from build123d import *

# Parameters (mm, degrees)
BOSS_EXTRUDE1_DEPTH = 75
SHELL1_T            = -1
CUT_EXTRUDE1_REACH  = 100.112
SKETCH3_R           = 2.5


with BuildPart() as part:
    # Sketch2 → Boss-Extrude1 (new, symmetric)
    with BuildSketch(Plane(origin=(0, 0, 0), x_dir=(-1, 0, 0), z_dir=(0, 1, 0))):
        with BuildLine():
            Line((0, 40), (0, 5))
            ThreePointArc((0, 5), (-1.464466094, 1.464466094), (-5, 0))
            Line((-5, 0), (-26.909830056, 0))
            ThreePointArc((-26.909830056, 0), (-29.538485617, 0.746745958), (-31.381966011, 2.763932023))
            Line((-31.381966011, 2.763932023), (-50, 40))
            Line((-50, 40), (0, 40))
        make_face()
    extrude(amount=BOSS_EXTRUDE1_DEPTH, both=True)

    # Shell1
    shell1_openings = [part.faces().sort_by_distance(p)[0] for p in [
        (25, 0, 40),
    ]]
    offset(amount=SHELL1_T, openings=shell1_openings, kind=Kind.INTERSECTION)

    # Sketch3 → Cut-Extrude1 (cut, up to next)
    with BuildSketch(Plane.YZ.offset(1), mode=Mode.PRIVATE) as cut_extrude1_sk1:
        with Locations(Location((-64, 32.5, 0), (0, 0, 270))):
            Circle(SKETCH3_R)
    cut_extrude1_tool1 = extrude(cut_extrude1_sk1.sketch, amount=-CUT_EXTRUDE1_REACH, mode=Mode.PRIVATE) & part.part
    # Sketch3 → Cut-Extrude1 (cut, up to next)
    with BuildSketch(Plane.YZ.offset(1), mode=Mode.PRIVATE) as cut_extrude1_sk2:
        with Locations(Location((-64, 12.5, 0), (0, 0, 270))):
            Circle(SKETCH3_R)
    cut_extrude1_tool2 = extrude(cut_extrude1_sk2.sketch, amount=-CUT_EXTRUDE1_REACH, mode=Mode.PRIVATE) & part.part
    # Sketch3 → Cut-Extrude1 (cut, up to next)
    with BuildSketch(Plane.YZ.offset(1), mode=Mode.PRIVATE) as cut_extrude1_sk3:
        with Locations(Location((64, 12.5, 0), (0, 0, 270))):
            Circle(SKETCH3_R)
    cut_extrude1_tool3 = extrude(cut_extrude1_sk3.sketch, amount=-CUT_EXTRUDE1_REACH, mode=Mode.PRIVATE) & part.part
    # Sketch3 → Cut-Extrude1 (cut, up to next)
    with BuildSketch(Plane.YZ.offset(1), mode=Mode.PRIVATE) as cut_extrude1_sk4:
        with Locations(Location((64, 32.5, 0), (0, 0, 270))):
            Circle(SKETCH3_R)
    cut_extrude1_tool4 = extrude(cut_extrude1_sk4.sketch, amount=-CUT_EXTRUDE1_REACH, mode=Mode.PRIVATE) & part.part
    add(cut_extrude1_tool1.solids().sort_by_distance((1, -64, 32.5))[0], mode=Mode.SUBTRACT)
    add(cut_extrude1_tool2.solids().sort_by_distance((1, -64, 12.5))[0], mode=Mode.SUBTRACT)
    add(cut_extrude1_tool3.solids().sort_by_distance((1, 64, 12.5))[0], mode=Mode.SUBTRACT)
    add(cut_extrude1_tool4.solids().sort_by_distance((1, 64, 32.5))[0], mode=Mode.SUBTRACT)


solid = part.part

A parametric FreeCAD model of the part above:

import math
import FreeCAD as App
import Part
import Sketcher
from FreeCAD import Vector
Q = App.Units.Quantity


def faces_at(feature, points):
    """Names of the faces that lie closest to the given points."""
    faces = feature.Shape.Faces
    near = lambda p: min(range(len(faces)), key=lambda i: faces[i].distToShape(Part.Vertex(*p))[0])
    return sorted({f"Face{near(p) + 1}" for p in points})

doc = App.newDocument("Part")
params = doc.addObject("Spreadsheet::Sheet", "Params")
for row, (alias, value) in enumerate([
    ("sketch1_radius", "5 mm"),
    ("sketch1_width", "50 mm"),
    ("sketch1_height", "35 mm"),
    ("pad1_length", "150 mm"),
    ("thickness_wall", "1 mm"),
    ("sketch2_diameter", "5 mm"),
    ("sketch3_diameter", "5 mm"),
    ("sketch4_diameter", "5 mm"),
    ("sketch5_diameter", "5 mm"),
], start=1):
    params.set(f"A{row}", alias)
    params.set(f"B{row}", "=" + value)
    params.setAlias(f"B{row}", alias)

body = doc.addObject("PartDesign::Body", "Body")

sketch1 = doc.addObject("Sketcher::SketchObject", "Sketch")
body.addObject(sketch1)
sketch1.AttachmentSupport = (doc.XZ_Plane, [""])
sketch1.MapMode = "FlatFace"
sketch1.addGeometry(Part.LineSegment(Vector(0, 5, 0), Vector(0, 40, 0)), False)
sketch1.addGeometry(Part.LineSegment(Vector(0, 40, 0), Vector(50, 40, 0)), False)
sketch1.addGeometry(Part.LineSegment(Vector(50, 40, 0), Vector(31.381966, 2.763932, 0)), False)
sketch1.addGeometry(Part.ArcOfCircle(Part.Circle(Vector(26.90983, 5, 0), Vector(0, 0, 1), 5), math.radians(-90), math.radians(-26.565051)), False)
sketch1.addGeometry(Part.LineSegment(Vector(26.90983, 0, 0), Vector(5, 0, 0)), False)
sketch1.addGeometry(Part.ArcOfCircle(Part.Circle(Vector(5, 5, 0), Vector(0, 0, 1), 5), math.radians(180), math.radians(270)), False)
sketch1.addConstraint(Sketcher.Constraint("Coincident", 0, 2, 1, 1))
sketch1.addConstraint(Sketcher.Constraint("Coincident", 1, 2, 2, 1))
sketch1.addConstraint(Sketcher.Constraint("Tangent", 2, 2, 3, 2))
sketch1.addConstraint(Sketcher.Constraint("Tangent", 3, 1, 4, 1))
sketch1.addConstraint(Sketcher.Constraint("Tangent", 4, 2, 5, 2))
sketch1.addConstraint(Sketcher.Constraint("Tangent", 5, 1, 0, 1))
sketch1.addConstraint(Sketcher.Constraint("Vertical", 0))
sketch1.addConstraint(Sketcher.Constraint("Horizontal", 1))
sketch1.addConstraint(Sketcher.Constraint("Horizontal", 4))
sketch1.addConstraint(Sketcher.Constraint("Equal", 3, 5))
sketch1.addConstraint(Sketcher.Constraint("PointOnObject", 0, 2, -2))
sketch1.addConstraint(Sketcher.Constraint("PointOnObject", 3, 1, -1))
sketch1.addConstraint(Sketcher.Constraint("Radius", 3, Q("5 mm")))
sketch1.addConstraint(Sketcher.Constraint("DistanceX", 1, 1, 1, 2, Q("50 mm")))
sketch1.addConstraint(Sketcher.Constraint("DistanceY", 0, 1, 0, 2, Q("35 mm")))
sketch1.addConstraint(Sketcher.Constraint("DistanceX", 4, 2, 4, 1, Q("21.90983 mm")))
sketch1.setExpression("Constraints[12]", "Params.sketch1_radius")
sketch1.setExpression("Constraints[13]", "Params.sketch1_width")
sketch1.setExpression("Constraints[14]", "Params.sketch1_height")
pad1 = doc.addObject("PartDesign::Pad", "Pad")
body.addObject(pad1)
pad1.Profile = sketch1
pad1.setExpression("Length", "Params.pad1_length")
pad1.Midplane = True
doc.recompute()

thickness = doc.addObject("PartDesign::Thickness", "Thickness")
body.addObject(thickness)
thickness.Base = (pad1, faces_at(pad1, [(25, 0, 40)]))
thickness.setExpression("Value", "Params.thickness_wall")
thickness.Reversed = True
thickness.Join = "Intersection"

sketch2 = doc.addObject("Sketcher::SketchObject", "Sketch001")
body.addObject(sketch2)
sketch2.AttachmentSupport = (doc.YZ_Plane, [""])
sketch2.MapMode = "FlatFace"
sketch2.AttachmentOffset = App.Placement(Vector(0, 0, 1), App.Rotation())
sketch2.addGeometry(Part.Circle(Vector(-64, 32.5, 0), Vector(0, 0, 1), 2.5), False)
sketch2.addConstraint(Sketcher.Constraint("Diameter", 0, Q("5 mm")))
sketch2.addConstraint(Sketcher.Constraint("DistanceX", 0, 3, -1, 1, Q("64 mm")))
sketch2.addConstraint(Sketcher.Constraint("DistanceY", -1, 1, 0, 3, Q("32.5 mm")))
sketch2.setExpression("Constraints[0]", "Params.sketch2_diameter")
pocket1 = doc.addObject("PartDesign::Pocket", "Pocket")
body.addObject(pocket1)
pocket1.Profile = sketch2
pocket1.Type = "UpToFirst"

sketch3 = doc.addObject("Sketcher::SketchObject", "Sketch002")
body.addObject(sketch3)
sketch3.AttachmentSupport = (doc.YZ_Plane, [""])
sketch3.MapMode = "FlatFace"
sketch3.AttachmentOffset = App.Placement(Vector(0, 0, 1), App.Rotation())
sketch3.addGeometry(Part.Circle(Vector(-64, 12.5, 0), Vector(0, 0, 1), 2.5), False)
sketch3.addConstraint(Sketcher.Constraint("Diameter", 0, Q("5 mm")))
sketch3.addConstraint(Sketcher.Constraint("DistanceX", 0, 3, -1, 1, Q("64 mm")))
sketch3.addConstraint(Sketcher.Constraint("DistanceY", -1, 1, 0, 3, Q("12.5 mm")))
sketch3.setExpression("Constraints[0]", "Params.sketch3_diameter")
pocket2 = doc.addObject("PartDesign::Pocket", "Pocket001")
body.addObject(pocket2)
pocket2.Profile = sketch3
pocket2.Type = "UpToFirst"

sketch4 = doc.addObject("Sketcher::SketchObject", "Sketch003")
body.addObject(sketch4)
sketch4.AttachmentSupport = (doc.YZ_Plane, [""])
sketch4.MapMode = "FlatFace"
sketch4.AttachmentOffset = App.Placement(Vector(0, 0, 1), App.Rotation())
sketch4.addGeometry(Part.Circle(Vector(64, 12.5, 0), Vector(0, 0, 1), 2.5), False)
sketch4.addConstraint(Sketcher.Constraint("Diameter", 0, Q("5 mm")))
sketch4.addConstraint(Sketcher.Constraint("DistanceX", -1, 1, 0, 3, Q("64 mm")))
sketch4.addConstraint(Sketcher.Constraint("DistanceY", -1, 1, 0, 3, Q("12.5 mm")))
sketch4.setExpression("Constraints[0]", "Params.sketch4_diameter")
pocket3 = doc.addObject("PartDesign::Pocket", "Pocket002")
body.addObject(pocket3)
pocket3.Profile = sketch4
pocket3.Type = "UpToFirst"

sketch5 = doc.addObject("Sketcher::SketchObject", "Sketch004")
body.addObject(sketch5)
sketch5.AttachmentSupport = (doc.YZ_Plane, [""])
sketch5.MapMode = "FlatFace"
sketch5.AttachmentOffset = App.Placement(Vector(0, 0, 1), App.Rotation())
sketch5.addGeometry(Part.Circle(Vector(64, 32.5, 0), Vector(0, 0, 1), 2.5), False)
sketch5.addConstraint(Sketcher.Constraint("Diameter", 0, Q("5 mm")))
sketch5.addConstraint(Sketcher.Constraint("DistanceX", -1, 1, 0, 3, Q("64 mm")))
sketch5.addConstraint(Sketcher.Constraint("DistanceY", -1, 1, 0, 3, Q("32.5 mm")))
sketch5.setExpression("Constraints[0]", "Params.sketch5_diameter")
pocket4 = doc.addObject("PartDesign::Pocket", "Pocket003")
body.addObject(pocket4)
pocket4.Profile = sketch5
pocket4.Type = "UpToFirst"

doc.recompute()
